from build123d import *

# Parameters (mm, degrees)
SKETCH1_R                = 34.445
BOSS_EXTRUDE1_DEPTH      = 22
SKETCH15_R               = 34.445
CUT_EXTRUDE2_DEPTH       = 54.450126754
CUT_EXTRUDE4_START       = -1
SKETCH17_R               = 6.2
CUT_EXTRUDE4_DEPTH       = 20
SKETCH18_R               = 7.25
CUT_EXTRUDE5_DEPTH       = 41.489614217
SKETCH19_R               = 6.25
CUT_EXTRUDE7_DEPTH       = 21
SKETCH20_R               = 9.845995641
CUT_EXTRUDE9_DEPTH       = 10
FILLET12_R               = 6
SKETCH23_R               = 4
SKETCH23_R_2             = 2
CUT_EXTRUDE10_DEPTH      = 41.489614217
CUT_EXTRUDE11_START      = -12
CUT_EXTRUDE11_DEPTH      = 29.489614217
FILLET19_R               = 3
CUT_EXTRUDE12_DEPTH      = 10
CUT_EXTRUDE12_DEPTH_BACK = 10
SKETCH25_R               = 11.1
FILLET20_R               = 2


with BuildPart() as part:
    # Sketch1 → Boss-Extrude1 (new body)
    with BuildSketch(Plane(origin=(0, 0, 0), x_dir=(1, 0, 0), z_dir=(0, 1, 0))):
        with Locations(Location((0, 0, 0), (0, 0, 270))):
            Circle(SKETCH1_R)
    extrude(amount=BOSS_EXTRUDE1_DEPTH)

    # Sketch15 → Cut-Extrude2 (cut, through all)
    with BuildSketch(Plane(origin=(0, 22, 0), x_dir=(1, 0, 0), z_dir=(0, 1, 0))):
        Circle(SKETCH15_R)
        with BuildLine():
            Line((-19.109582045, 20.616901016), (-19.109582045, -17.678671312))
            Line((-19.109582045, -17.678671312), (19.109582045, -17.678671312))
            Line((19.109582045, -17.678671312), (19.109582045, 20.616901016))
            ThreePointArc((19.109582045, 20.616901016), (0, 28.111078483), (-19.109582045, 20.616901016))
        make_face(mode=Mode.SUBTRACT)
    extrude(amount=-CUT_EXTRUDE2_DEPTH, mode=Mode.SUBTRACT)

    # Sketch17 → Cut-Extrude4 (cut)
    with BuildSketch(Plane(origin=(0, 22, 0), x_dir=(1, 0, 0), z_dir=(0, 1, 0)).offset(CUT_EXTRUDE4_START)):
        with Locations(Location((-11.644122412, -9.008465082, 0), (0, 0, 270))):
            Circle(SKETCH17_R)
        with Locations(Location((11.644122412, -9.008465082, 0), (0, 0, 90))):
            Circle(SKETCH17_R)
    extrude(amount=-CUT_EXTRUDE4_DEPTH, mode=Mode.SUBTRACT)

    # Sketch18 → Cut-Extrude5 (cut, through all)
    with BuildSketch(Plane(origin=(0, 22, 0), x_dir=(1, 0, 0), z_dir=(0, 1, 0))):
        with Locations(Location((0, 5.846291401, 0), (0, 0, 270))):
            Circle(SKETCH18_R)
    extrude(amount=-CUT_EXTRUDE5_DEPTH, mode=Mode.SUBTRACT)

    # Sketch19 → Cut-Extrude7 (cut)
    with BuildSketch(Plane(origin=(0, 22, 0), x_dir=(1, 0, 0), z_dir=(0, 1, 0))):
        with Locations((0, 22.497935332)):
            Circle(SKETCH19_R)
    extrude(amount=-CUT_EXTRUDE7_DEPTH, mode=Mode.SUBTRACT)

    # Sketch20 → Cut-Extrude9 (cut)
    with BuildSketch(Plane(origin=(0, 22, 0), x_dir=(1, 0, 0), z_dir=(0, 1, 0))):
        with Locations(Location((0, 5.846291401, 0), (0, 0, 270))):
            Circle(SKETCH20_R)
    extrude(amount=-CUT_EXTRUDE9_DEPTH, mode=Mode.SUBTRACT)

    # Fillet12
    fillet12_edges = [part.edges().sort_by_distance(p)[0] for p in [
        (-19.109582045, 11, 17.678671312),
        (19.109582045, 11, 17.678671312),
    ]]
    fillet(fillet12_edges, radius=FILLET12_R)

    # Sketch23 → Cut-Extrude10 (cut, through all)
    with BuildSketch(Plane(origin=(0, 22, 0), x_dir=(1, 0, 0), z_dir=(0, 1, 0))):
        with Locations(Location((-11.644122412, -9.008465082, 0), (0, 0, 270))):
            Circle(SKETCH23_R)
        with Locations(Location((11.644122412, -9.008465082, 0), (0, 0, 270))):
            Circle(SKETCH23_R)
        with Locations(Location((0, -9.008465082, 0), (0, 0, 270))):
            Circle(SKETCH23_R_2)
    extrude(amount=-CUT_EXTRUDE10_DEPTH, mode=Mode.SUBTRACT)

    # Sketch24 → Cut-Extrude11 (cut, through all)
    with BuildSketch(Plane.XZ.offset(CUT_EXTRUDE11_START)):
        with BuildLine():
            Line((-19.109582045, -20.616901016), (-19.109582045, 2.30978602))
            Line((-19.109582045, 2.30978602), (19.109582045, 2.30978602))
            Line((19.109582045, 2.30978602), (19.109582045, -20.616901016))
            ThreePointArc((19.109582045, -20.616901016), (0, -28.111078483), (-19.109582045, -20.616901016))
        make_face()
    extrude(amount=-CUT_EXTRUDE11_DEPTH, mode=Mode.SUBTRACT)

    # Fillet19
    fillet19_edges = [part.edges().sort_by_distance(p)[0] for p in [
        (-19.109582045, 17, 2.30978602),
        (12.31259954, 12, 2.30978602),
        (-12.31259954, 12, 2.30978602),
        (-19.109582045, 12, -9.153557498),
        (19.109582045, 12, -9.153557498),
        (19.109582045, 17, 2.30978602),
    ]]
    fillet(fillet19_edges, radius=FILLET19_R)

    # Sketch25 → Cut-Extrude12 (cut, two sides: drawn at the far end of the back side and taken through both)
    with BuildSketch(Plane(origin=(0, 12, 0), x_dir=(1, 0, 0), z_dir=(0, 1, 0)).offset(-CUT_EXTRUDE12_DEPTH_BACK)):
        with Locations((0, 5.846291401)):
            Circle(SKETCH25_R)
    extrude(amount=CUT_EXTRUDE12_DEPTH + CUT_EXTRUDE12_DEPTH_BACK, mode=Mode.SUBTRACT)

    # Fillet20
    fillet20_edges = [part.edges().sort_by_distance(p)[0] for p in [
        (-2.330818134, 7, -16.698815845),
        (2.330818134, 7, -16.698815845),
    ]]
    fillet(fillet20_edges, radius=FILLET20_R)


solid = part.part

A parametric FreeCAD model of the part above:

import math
import FreeCAD as App
import Part
import Sketcher
from FreeCAD import Vector
Q = App.Units.Quantity


def edges_at(feature, points):
    """Names of the edges that pass closest to the given points."""
    edges = feature.Shape.Edges
    near = lambda p: min(range(len(edges)), key=lambda i: edges[i].distToShape(Part.Vertex(*p))[0])
    return sorted({f"Edge{near(p) + 1}" for p in points})

doc = App.newDocument("Part")
body = doc.addObject("PartDesign::Body", "Body")

sketch1 = body.newObject("Sketcher::SketchObject", "Sketch")
sketch1.AttachmentSupport = (doc.getObject("XZ_Plane"), [""])
sketch1.MapMode = "FlatFace"
sketch1.addGeometry(Part.Circle(Vector(0, 0, 0), Vector(0, 0, 1), 34), False)
sketch1.addConstraint([
    Sketcher.Constraint("Coincident", 0, 3, -1, 1),
    Sketcher.Constraint("Diameter", 0, Q("68.89 mm")),
])
pad1 = body.newObject("PartDesign::Pad", "Pad")
pad1.Profile = sketch1
pad1.Length = 22
pad1.Reversed = True

sketch2 = body.newObject("Sketcher::SketchObject", "Sketch001")
sketch2.AttachmentSupport = (doc.getObject("XZ_Plane"), [""])
sketch2.MapMode = "FlatFace"
sketch2.AttachmentOffset = App.Placement(Vector(0, 0, -22), App.Rotation())
sketch2.addGeometry([
    Part.Circle(Vector(0, 0, 0), Vector(0, 0, 1), 34),
    Part.LineSegment(Vector(-19, 18, 0), Vector(-19, -21, 0)),
    Part.ArcOfCircle(Part.Circle(Vector(0, 0, 0), Vector(0, 0, 1), 28), math.radians(-133), math.radians(-47)),
    Part.LineSegment(Vector(19, -21, 0), Vector(19, 18, 0)),
    Part.LineSegment(Vector(19, 18, 0), Vector(-19, 18, 0)),
], False)
sketch2.addConstraint([
    Sketcher.Constraint("Coincident", 1, 2, 2, 1),
    Sketcher.Constraint("Coincident", 2, 2, 3, 1),
    Sketcher.Constraint("Coincident", 3, 2, 4, 1),
    Sketcher.Constraint("Coincident", 4, 2, 1, 1),
    Sketcher.Constraint("Vertical", 1),
    Sketcher.Constraint("Vertical", 3),
    Sketcher.Constraint("Horizontal", 4),
    Sketcher.Constraint("Coincident", 0, 3, -1, 1),
    Sketcher.Constraint("Coincident", 2, 3, -1, 1),
    Sketcher.Constraint("Horizontal", 1, 2, 2, 2),
    Sketcher.Constraint("Diameter", 0, Q("68.89 mm")),
    Sketcher.Constraint("Radius", 2, Q("28.111078 mm")),
    Sketcher.Constraint("DistanceY", 1, 2, -1, 1, Q("20.616901 mm")),
    Sketcher.Constraint("DistanceY", 1, 2, 1, 1, Q("38.295572 mm")),
])
pocket1 = body.newObject("PartDesign::Pocket", "Pocket")
pocket1.Profile = sketch2
pocket1.Type = "ThroughAll"
pocket1.Reversed = True

sketch3 = body.newObject("Sketcher::SketchObject", "Sketch002")
sketch3.AttachmentSupport = (doc.getObject("XZ_Plane"), [""])
sketch3.MapMode = "FlatFace"
sketch3.AttachmentOffset = App.Placement(Vector(0, 0, -21), App.Rotation())
sketch3.addGeometry([
    Part.Circle(Vector(-12, 9, 0), Vector(0, 0, 1), 6),
    Part.Circle(Vector(12, 9, 0), Vector(0, 0, 1), 6),
], False)
sketch3.addConstraint([
    Sketcher.Constraint("Equal", 0, 1),
    Sketcher.Constraint("Symmetric", 0, 3, 1, 3, -2),
    Sketcher.Constraint("Diameter", 0, Q("12.4 mm")),
    Sketcher.Constraint("DistanceX", 0, 3, -1, 1, Q("11.644122 mm")),
    Sketcher.Constraint("DistanceY", -1, 1, 0, 3, Q("9.008465 mm")),
])
pocket2 = body.newObject("PartDesign::Pocket", "Pocket001")
pocket2.Profile = sketch3
pocket2.Length = 20
pocket2.Reversed = True

sketch4 = body.newObject("Sketcher::SketchObject", "Sketch003")
sketch4.AttachmentSupport = (doc.getObject("XZ_Plane"), [""])
sketch4.MapMode = "FlatFace"
sketch4.AttachmentOffset = App.Placement(Vector(0, 0, -22), App.Rotation())
sketch4.addGeometry(Part.Circle(Vector(0, -6, 0), Vector(0, 0, 1), 7), False)
sketch4.addConstraint([
    Sketcher.Constraint("PointOnObject", 0, 3, -2),
    Sketcher.Constraint("Diameter", 0, Q("14.5 mm")),
    Sketcher.Constraint("DistanceY", 0, 3, -1, 1, Q("5.846291 mm")),
])
pocket3 = body.newObject("PartDesign::Pocket", "Pocket002")
pocket3.Profile = sketch4
pocket3.Type = "ThroughAll"
pocket3.Reversed = True

sketch5 = body.newObject("Sketcher::SketchObject", "Sketch004")
sketch5.AttachmentSupport = (doc.getObject("XZ_Plane"), [""])
sketch5.MapMode = "FlatFace"
sketch5.AttachmentOffset = App.Placement(Vector(0, 0, -22), App.Rotation())
sketch5.addGeometry(Part.Circle(Vector(0, -22, 0), Vector(0, 0, 1), 6), False)
sketch5.addConstraint([
    Sketcher.Constraint("PointOnObject", 0, 3, -2),
    Sketcher.Constraint("Diameter", 0, Q("12.5 mm")),
    Sketcher.Constraint("DistanceY", 0, 3, -1, 1, Q("22.497935 mm")),
])
pocket4 = body.newObject("PartDesign::Pocket", "Pocket003")
pocket4.Profile = sketch5
pocket4.Length = 21
pocket4.Reversed = True

sketch6 = body.newObject("Sketcher::SketchObject", "Sketch005")
sketch6.AttachmentSupport = (doc.getObject("XZ_Plane"), [""])
sketch6.MapMode = "FlatFace"
sketch6.AttachmentOffset = App.Placement(Vector(0, 0, -22), App.Rotation())
sketch6.addGeometry(Part.Circle(Vector(0, -6, 0), Vector(0, 0, 1), 10), False)
sketch6.addConstraint([
    Sketcher.Constraint("PointOnObject", 0, 3, -2),
    Sketcher.Constraint("Diameter", 0, Q("19.691991 mm")),
    Sketcher.Constraint("DistanceY", 0, 3, -1, 1, Q("5.846291 mm")),
])
pocket5 = body.newObject("PartDesign::Pocket", "Pocket004")
pocket5.Profile = sketch6
pocket5.Length = 10
pocket5.Reversed = True
doc.recompute()

fillet = body.newObject("PartDesign::Fillet", "Fillet")
fillet.Base = (pocket5, edges_at(pocket5, [(-19.11, 11, 17.679), (19.11, 11, 17.679)]))
fillet.Radius = 6

sketch7 = body.newObject("Sketcher::SketchObject", "Sketch006")
sketch7.AttachmentSupport = (doc.getObject("XZ_Plane"), [""])
sketch7.MapMode = "FlatFace"
sketch7.AttachmentOffset = App.Placement(Vector(0, 0, -22), App.Rotation())
sketch7.addGeometry([
    Part.Circle(Vector(-11.6, 9, 0), Vector(0, 0, 1), 4),
    Part.Circle(Vector(11.6, 9, 0), Vector(0, 0, 1), 4),
    Part.Circle(Vector(0, 9, 0), Vector(0, 0, 1), 2),
], False)
sketch7.addConstraint([
    Sketcher.Constraint("Equal", 0, 1),
    Sketcher.Constraint("Symmetric", 0, 3, 1, 3, -2),
    Sketcher.Constraint("PointOnObject", 2, 3, -2),
    Sketcher.Constraint("Horizontal", 1, 3, 2, 3),
    Sketcher.Constraint("Diameter", 0, Q("8 mm")),
    Sketcher.Constraint("Diameter", 2, Q("4 mm")),
    Sketcher.Constraint("DistanceX", 0, 3, -1, 1, Q("11.644122 mm")),
    Sketcher.Constraint("DistanceY", -1, 1, 0, 3, Q("9.008465 mm")),
])
pocket6 = body.newObject("PartDesign::Pocket", "Pocket005")
pocket6.Profile = sketch7
pocket6.Type = "ThroughAll"
pocket6.Reversed = True

sketch8 = body.newObject("Sketcher::SketchObject", "Sketch007")
sketch8.AttachmentSupport = (doc.getObject("XZ_Plane"), [""])
sketch8.MapMode = "FlatFace"
sketch8.AttachmentOffset = App.Placement(Vector(0, 0, -12), App.Rotation())
sketch8.addGeometry([
    Part.LineSegment(Vector(-19, 2, 0), Vector(-19, -21, 0)),
    Part.ArcOfCircle(Part.Circle(Vector(0, 0, 0), Vector(0, 0, 1), 28), math.radians(-133), math.radians(-47)),
    Part.LineSegment(Vector(19, -21, 0), Vector(19, 2, 0)),
    Part.LineSegment(Vector(19, 2, 0), Vector(-19, 2, 0)),
], False)
sketch8.addConstraint([
    Sketcher.Constraint("Coincident", 0, 2, 1, 1),
    Sketcher.Constraint("Coincident", 1, 2, 2, 1),
    Sketcher.Constraint("Coincident", 2, 2, 3, 1),
    Sketcher.Constraint("Coincident", 3, 2, 0, 1),
    Sketcher.Constraint("Vertical", 0),
    Sketcher.Constraint("Vertical", 2),
    Sketcher.Constraint("Horizontal", 3),
    Sketcher.Constraint("Coincident", 1, 3, -1, 1),
    Sketcher.Constraint("Horizontal", 0, 2, 1, 2),
    Sketcher.Constraint("Radius", 1, Q("28.111078 mm")),
    Sketcher.Constraint("DistanceY", 0, 2, -1, 1, Q("20.616901 mm")),
    Sketcher.Constraint("DistanceY", 0, 2, 0, 1, Q("22.926687 mm")),
])
pocket7 = body.newObject("PartDesign::Pocket", "Pocket006")
pocket7.Profile = sketch8
pocket7.Type = "ThroughAll"
doc.recompute()

fillet2 = body.newObject("PartDesign::Fillet", "Fillet001")
fillet2.Base = (pocket7, edges_at(pocket7, [
    (-19.11, 17, 2.31),
    (12.313, 12, 2.31),
    (-12.313, 12, 2.31),
    (-19.11, 12, -9.154),
    (19.11, 12, -9.154),
    (19.11, 17, 2.31),
]))
fillet2.Radius = 3

sketch9 = body.newObject("Sketcher::SketchObject", "Sketch008")
sketch9.AttachmentSupport = (doc.getObject("XZ_Plane"), [""])
sketch9.MapMode = "FlatFace"
sketch9.AttachmentOffset = App.Placement(Vector(0, 0, -12), App.Rotation())
sketch9.addGeometry(Part.Circle(Vector(0, -6, 0), Vector(0, 0, 1), 11), False)
sketch9.addConstraint([
    Sketcher.Constraint("PointOnObject", 0, 3, -2),
    Sketcher.Constraint("Diameter", 0, Q("22.2 mm")),
    Sketcher.Constraint("DistanceY", 0, 3, -1, 1, Q("5.846291 mm")),
])
pocket8 = body.newObject("PartDesign::Pocket", "Pocket007")
pocket8.Profile = sketch9
pocket8.Type = "TwoLengths"
pocket8.Length = 10
pocket8.Length2 = 10
doc.recompute()

fillet3 = body.newObject("PartDesign::Fillet", "Fillet002")
fillet3.Base = (pocket8, edges_at(pocket8, [(-2.331, 7, -16.699), (2.331, 7, -16.699)]))
fillet3.Radius = 2

doc.recompute()
